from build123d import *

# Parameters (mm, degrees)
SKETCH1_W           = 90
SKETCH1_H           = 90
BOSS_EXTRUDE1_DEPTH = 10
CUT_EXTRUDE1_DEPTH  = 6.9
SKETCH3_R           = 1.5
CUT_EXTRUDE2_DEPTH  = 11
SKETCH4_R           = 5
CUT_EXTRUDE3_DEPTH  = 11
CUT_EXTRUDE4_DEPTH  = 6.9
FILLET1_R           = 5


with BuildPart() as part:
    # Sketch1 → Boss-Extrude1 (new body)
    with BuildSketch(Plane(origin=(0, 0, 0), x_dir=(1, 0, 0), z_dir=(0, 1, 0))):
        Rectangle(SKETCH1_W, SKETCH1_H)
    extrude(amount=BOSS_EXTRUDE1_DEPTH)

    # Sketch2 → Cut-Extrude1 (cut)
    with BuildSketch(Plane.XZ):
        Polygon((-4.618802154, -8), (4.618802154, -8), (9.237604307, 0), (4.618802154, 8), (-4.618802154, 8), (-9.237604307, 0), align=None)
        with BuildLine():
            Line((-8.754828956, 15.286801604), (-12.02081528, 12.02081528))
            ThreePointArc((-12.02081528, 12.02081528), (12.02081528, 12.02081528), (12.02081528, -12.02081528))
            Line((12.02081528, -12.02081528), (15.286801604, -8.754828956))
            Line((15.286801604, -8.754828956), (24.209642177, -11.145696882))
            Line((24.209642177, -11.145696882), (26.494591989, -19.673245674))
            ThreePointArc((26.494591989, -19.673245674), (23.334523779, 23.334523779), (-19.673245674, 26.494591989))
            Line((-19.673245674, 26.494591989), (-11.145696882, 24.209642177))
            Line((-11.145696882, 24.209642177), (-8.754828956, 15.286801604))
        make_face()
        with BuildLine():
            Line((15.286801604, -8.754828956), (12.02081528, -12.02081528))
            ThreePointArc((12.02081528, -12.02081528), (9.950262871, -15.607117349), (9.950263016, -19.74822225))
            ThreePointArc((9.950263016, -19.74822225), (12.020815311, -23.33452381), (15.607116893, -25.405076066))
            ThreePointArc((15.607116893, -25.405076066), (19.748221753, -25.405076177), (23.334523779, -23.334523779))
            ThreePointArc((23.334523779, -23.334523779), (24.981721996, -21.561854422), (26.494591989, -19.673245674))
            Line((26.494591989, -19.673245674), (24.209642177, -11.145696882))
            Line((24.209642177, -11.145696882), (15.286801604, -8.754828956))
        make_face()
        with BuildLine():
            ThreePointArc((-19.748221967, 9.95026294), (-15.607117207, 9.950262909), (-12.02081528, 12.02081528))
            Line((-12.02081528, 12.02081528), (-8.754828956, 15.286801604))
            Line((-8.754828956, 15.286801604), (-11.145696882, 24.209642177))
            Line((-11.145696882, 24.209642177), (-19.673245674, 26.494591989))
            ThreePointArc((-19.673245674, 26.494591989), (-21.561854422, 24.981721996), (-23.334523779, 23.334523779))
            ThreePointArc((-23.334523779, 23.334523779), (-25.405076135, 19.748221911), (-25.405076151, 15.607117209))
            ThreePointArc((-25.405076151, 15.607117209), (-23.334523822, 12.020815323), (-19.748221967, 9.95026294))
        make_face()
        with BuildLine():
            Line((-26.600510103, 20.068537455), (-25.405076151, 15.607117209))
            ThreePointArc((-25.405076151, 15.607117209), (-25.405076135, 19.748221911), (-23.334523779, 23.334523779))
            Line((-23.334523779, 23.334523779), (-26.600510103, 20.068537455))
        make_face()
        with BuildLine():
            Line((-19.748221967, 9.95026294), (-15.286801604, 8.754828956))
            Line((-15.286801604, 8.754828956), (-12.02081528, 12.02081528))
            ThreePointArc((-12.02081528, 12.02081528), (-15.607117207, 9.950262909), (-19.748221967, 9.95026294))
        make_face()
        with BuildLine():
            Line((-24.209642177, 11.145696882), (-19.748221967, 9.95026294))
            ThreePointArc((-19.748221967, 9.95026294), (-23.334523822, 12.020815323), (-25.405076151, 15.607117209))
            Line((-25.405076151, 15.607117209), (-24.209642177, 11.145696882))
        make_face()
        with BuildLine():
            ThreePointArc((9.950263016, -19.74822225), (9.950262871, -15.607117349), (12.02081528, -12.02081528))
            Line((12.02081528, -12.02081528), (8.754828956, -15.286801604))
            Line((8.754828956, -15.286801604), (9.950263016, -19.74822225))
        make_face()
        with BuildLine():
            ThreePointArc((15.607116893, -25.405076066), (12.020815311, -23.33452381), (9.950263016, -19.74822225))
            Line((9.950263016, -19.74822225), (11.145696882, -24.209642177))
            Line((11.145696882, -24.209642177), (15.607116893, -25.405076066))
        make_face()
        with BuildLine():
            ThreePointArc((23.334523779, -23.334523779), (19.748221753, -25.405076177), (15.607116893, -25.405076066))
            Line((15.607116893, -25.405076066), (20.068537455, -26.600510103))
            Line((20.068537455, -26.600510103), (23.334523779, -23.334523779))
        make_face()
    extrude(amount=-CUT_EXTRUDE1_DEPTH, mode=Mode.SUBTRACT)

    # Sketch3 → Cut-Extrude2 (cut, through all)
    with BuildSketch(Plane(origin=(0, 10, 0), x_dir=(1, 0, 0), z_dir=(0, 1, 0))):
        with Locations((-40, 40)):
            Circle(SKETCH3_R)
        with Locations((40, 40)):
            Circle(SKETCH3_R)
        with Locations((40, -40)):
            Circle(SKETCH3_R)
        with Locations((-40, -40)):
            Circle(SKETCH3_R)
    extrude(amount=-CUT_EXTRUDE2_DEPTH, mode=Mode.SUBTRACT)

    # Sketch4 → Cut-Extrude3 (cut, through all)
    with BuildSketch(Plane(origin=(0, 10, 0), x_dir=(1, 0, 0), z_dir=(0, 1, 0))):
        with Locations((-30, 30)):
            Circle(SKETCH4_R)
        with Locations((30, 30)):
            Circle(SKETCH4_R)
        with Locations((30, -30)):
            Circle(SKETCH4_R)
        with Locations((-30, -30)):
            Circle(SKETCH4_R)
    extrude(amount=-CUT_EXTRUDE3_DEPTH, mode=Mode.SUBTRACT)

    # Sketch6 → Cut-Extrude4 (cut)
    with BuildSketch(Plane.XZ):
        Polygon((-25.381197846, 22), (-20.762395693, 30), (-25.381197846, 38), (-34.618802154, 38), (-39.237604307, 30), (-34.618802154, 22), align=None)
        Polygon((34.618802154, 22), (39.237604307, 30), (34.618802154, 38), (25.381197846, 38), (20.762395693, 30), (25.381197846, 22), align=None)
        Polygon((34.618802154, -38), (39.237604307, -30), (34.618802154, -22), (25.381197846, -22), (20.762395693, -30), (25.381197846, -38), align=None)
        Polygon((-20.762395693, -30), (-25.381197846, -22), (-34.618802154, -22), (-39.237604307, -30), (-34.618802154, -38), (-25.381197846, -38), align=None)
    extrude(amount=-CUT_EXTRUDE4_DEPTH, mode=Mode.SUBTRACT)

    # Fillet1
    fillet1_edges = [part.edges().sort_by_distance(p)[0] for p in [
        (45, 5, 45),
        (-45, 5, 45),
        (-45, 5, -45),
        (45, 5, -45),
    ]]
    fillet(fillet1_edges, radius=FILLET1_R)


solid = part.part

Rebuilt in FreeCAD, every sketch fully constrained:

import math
import FreeCAD as App
import Part
import Sketcher
from FreeCAD import Vector
Q = App.Units.Quantity


def edges_at(feature, points):
    """Names of the edges that pass closest to the given points."""
    edges = feature.Shape.Edges
    near = lambda p: min(range(len(edges)), key=lambda i: edges[i].distToShape(Part.Vertex(*p))[0])
    return sorted({f"Edge{near(p) + 1}" for p in points})


def add_polygon(sketch, points):
    """Adds a closed chain of lines whose ends are joined by coincident constraints."""
    first, n = sketch.GeometryCount, len(points)
    for a, b in zip(points, points[1:] + points[:1]):
        sketch.addGeometry(Part.LineSegment(App.Vector(*a, 0), App.Vector(*b, 0)), False)
    for i in range(n):
        sketch.addConstraint(Sketcher.Constraint("Coincident", first + i, 2, first + (i + 1) % n, 1))

doc = App.newDocument("Part")
params = doc.addObject("Spreadsheet::Sheet", "Params")
for row, (alias, value) in enumerate([
    ("sketch1_width", "90 mm"),
    ("pad1_length", "10 mm"),
    ("sketch2_radius", "17 mm"),
    ("sketch2_radius2", "33 mm"),
    ("pocket1_length", "6.9 mm"),
    ("sketch3_diameter", "3 mm"),
    ("sketch4_diameter", "10 mm"),
    ("pocket4_length", "6.9 mm"),
    ("fillet_radius", "5 mm"),
], start=1):
    params.set(f"A{row}", alias)
    params.set(f"B{row}", "=" + value)
    params.setAlias(f"B{row}", alias)

body = doc.addObject("PartDesign::Body", "Body")

# Sketch on XZ plane
sketch1 = doc.addObject("Sketcher::SketchObject", "Sketch")
body.addObject(sketch1)
sketch1.AttachmentSupport = (doc.XZ_Plane, [""])
sketch1.MapMode = "FlatFace"
add_polygon(sketch1, [(-45, -45), (-45, 45), (45, 45), (45, -45)])  # lines 0-3
sketch1.addConstraint([
    Sketcher.Constraint("Vertical", 0),
    Sketcher.Constraint("Horizontal", 1),
    Sketcher.Constraint("Vertical", 2),
    Sketcher.Constraint("Horizontal", 3),
    Sketcher.Constraint("Symmetric", 0, 2, 2, 2, -1, 1),
    Sketcher.Constraint("Equal", 3, 0),
    Sketcher.Constraint("DistanceX", 1, 1, 1, 2, 90.0),
])
sketch1.setExpression("Constraints[10]", "Params.sketch1_width")
pad1 = doc.addObject("PartDesign::Pad", "Pad")
body.addObject(pad1)
pad1.Profile = sketch1
pad1.setExpression("Length", "Params.pad1_length")
pad1.Reversed = True

# Sketch on XZ plane
sketch2 = doc.addObject("Sketcher::SketchObject", "Sketch001")
body.addObject(sketch2)
sketch2.AttachmentSupport = (doc.XZ_Plane, [""])
sketch2.MapMode = "FlatFace"
add_polygon(sketch2, [(-4.618802, -8), (4.618802, -8), (9.237604, 0), (4.618802, 8), (-4.618802, 8), (-9.237604, 0)])  # lines 0-5
sketch2.addGeometry(Part.ArcOfCircle(Part.Circle(Vector(0, 0, 0), Vector(0, 0, 1), 17), math.radians(-45), math.radians(135)), False)  # 6
sketch2.addGeometry(Part.LineSegment(Vector(12.020815, -12.020815, 0), Vector(8.754829, -15.286802, 0)), False)  # 7
sketch2.addGeometry(Part.LineSegment(Vector(8.754829, -15.286802, 0), Vector(9.950263, -19.748222, 0)), False)  # 8
sketch2.addGeometry(Part.LineSegment(Vector(9.950263, -19.748222, 0), Vector(11.145697, -24.209642, 0)), False)  # 9
sketch2.addGeometry(Part.LineSegment(Vector(11.145697, -24.209642, 0), Vector(15.607117, -25.405076, 0)), False)  # 10
sketch2.addGeometry(Part.LineSegment(Vector(15.607117, -25.405076, 0), Vector(20.068537, -26.60051, 0)), False)  # 11
sketch2.addGeometry(Part.LineSegment(Vector(20.068537, -26.60051, 0), Vector(23.334524, -23.334524, 0)), False)  # 12
sketch2.addGeometry(Part.ArcOfCircle(Part.Circle(Vector(0, 0, 0), Vector(0, 0, 1), 33), math.radians(-45), math.radians(-36.595296)), False)  # 13
sketch2.addGeometry(Part.ArcOfCircle(Part.Circle(Vector(0, 0, 0), Vector(0, 0, 1), 33), math.radians(-36.595296), math.radians(126.595296)), False)  # 14
sketch2.addGeometry(Part.ArcOfCircle(Part.Circle(Vector(0, 0, 0), Vector(0, 0, 1), 33), math.radians(126.595296), math.radians(135)), False)  # 15
sketch2.addGeometry(Part.LineSegment(Vector(-23.334524, 23.334524, 0), Vector(-26.60051, 20.068537, 0)), False)  # 16
sketch2.addGeometry(Part.LineSegment(Vector(-26.60051, 20.068537, 0), Vector(-25.405076, 15.607117, 0)), False)  # 17
sketch2.addGeometry(Part.LineSegment(Vector(-25.405076, 15.607117, 0), Vector(-24.209642, 11.145697, 0)), False)  # 18
sketch2.addGeometry(Part.LineSegment(Vector(-24.209642, 11.145697, 0), Vector(-19.748222, 9.950263, 0)), False)  # 19
sketch2.addGeometry(Part.LineSegment(Vector(-19.748222, 9.950263, 0), Vector(-15.286802, 8.754829, 0)), False)  # 20
sketch2.addGeometry(Part.LineSegment(Vector(-15.286802, 8.754829, 0), Vector(-12.020815, 12.020815, 0)), False)  # 21
sketch2.addConstraint([
    Sketcher.Constraint("Tangent", 6, 1, 7, 1),
    Sketcher.Constraint("Coincident", 7, 2, 8, 1),
    Sketcher.Constraint("Coincident", 8, 2, 9, 1),
    Sketcher.Constraint("Coincident", 9, 2, 10, 1),
    Sketcher.Constraint("Coincident", 10, 2, 11, 1),
    Sketcher.Constraint("Coincident", 11, 2, 12, 1),
    Sketcher.Constraint("Tangent", 12, 2, 13, 1),
    Sketcher.Constraint("Tangent", 13, 2, 14, 1),
    Sketcher.Constraint("Tangent", 14, 2, 15, 1),
    Sketcher.Constraint("Tangent", 15, 2, 16, 1),
    Sketcher.Constraint("Coincident", 16, 2, 17, 1),
    Sketcher.Constraint("Coincident", 17, 2, 18, 1),
    Sketcher.Constraint("Coincident", 18, 2, 19, 1),
    Sketcher.Constraint("Coincident", 19, 2, 20, 1),
    Sketcher.Constraint("Coincident", 20, 2, 21, 1),
    Sketcher.Constraint("Tangent", 21, 2, 6, 2),
    Sketcher.Constraint("Horizontal", 0),
    Sketcher.Constraint("Horizontal", 3),
    Sketcher.Constraint("Coincident", 6, 3, -1, 1),
    Sketcher.Constraint("Coincident", 13, 3, -1, 1),
    Sketcher.Constraint("Coincident", 15, 3, -1, 1),
    Sketcher.Constraint("Symmetric", 0, 2, 3, 2, -1, 1),
    Sketcher.Constraint("Symmetric", 1, 2, 4, 2, -1, 1),
    Sketcher.Constraint("PointOnObject", 1, 2, -1),
    Sketcher.Constraint("Parallel", 2, 5),
    Sketcher.Constraint("Parallel", 8, 9),
    Sketcher.Constraint("Parallel", 10, 11),
    Sketcher.Constraint("Parallel", 7, 12),
    Sketcher.Constraint("Parallel", 12, 16),
    Sketcher.Constraint("Parallel", 9, 17),
    Sketcher.Constraint("Parallel", 17, 18),
    Sketcher.Constraint("Parallel", 11, 19),
    Sketcher.Constraint("Parallel", 19, 20),
    Sketcher.Constraint("Parallel", 16, 21),
    Sketcher.Constraint("Vertical", 0, 2, 2, 2),
    Sketcher.Constraint("Equal", 7, 8),
    Sketcher.Constraint("Equal", 8, 9),
    Sketcher.Constraint("Equal", 9, 10),
    Sketcher.Constraint("Equal", 10, 11),
    Sketcher.Constraint("Equal", 11, 12),
    Sketcher.Constraint("Equal", 12, 16),
    Sketcher.Constraint("Equal", 16, 17),
    Sketcher.Constraint("Equal", 17, 18),
    Sketcher.Constraint("Equal", 18, 19),
    Sketcher.Constraint("Radius", 6, 17.0),
    Sketcher.Constraint("Radius", 13, 33.0),
    Sketcher.Constraint("Angle", 1, Q("60 deg")),
    Sketcher.Constraint("Angle", 7, Q("-135 deg")),
    Sketcher.Constraint("Angle", 8, Q("-75 deg")),
    Sketcher.Constraint("DistanceY", 0, 2, -1, 1, 8.0),
    Sketcher.Constraint("DistanceX", 20, 2, 3, 2, 10.667999),
    Sketcher.Constraint("DistanceX", -1, 1, 13, 2, 26.494592),
    Sketcher.Constraint("DistanceY", -1, 1, 14, 2, 26.494592),
])
sketch2.setExpression("Constraints[50]", "Params.sketch2_radius")
sketch2.setExpression("Constraints[51]", "Params.sketch2_radius2")
pocket1 = doc.addObject("PartDesign::Pocket", "Pocket")
body.addObject(pocket1)
pocket1.Profile = sketch2
pocket1.setExpression("Length", "Params.pocket1_length")

# Sketch on XZ plane
sketch3 = doc.addObject("Sketcher::SketchObject", "Sketch002")
body.addObject(sketch3)
sketch3.AttachmentSupport = (doc.XZ_Plane, [""])
sketch3.MapMode = "FlatFace"
sketch3.AttachmentOffset = App.Placement(Vector(0, 0, -10), App.Rotation())
sketch3.addGeometry([
    Part.Circle(Vector(-40, -40, 0), Vector(0, 0, 1), 1.5),
    Part.Circle(Vector(40, -40, 0), Vector(0, 0, 1), 1.5),
    Part.Circle(Vector(40, 40, 0), Vector(0, 0, 1), 1.5),
    Part.Circle(Vector(-40, 40, 0), Vector(0, 0, 1), 1.5),
], False)
sketch3.addConstraint([
    Sketcher.Constraint("Equal", 0, 1),
    Sketcher.Constraint("Equal", 1, 2),
    Sketcher.Constraint("Equal", 2, 3),
    Sketcher.Constraint("Symmetric", 0, 3, 2, 3, -1, 1),
    Sketcher.Constraint("Symmetric", 1, 3, 3, 3, -1, 1),
    Sketcher.Constraint("Symmetric", 0, 3, 1, 3, -2),
    Sketcher.Constraint("Diameter", 0, 3.0),
    Sketcher.Constraint("DistanceX", 0, 3, -1, 1, 40.0),
    Sketcher.Constraint("DistanceY", 0, 3, -1, 1, 40.0),
])
sketch3.setExpression("Constraints[6]", "Params.sketch3_diameter")
pocket2 = doc.addObject("PartDesign::Pocket", "Pocket001")
body.addObject(pocket2)
pocket2.Profile = sketch3
pocket2.Type = "ThroughAll"
pocket2.Reversed = True

# Sketch on XZ plane
sketch4 = doc.addObject("Sketcher::SketchObject", "Sketch003")
body.addObject(sketch4)
sketch4.AttachmentSupport = (doc.XZ_Plane, [""])
sketch4.MapMode = "FlatFace"
sketch4.AttachmentOffset = App.Placement(Vector(0, 0, -10), App.Rotation())
sketch4.addGeometry([
    Part.Circle(Vector(-30, -30, 0), Vector(0, 0, 1), 5),
    Part.Circle(Vector(30, -30, 0), Vector(0, 0, 1), 5),
    Part.Circle(Vector(30, 30, 0), Vector(0, 0, 1), 5),
    Part.Circle(Vector(-30, 30, 0), Vector(0, 0, 1), 5),
], False)
sketch4.addConstraint([
    Sketcher.Constraint("Equal", 0, 1),
    Sketcher.Constraint("Equal", 1, 2),
    Sketcher.Constraint("Equal", 2, 3),
    Sketcher.Constraint("Symmetric", 0, 3, 2, 3, -1, 1),
    Sketcher.Constraint("Symmetric", 1, 3, 3, 3, -1, 1),
    Sketcher.Constraint("Symmetric", 0, 3, 1, 3, -2),
    Sketcher.Constraint("Diameter", 0, 10.0),
    Sketcher.Constraint("DistanceX", 0, 3, -1, 1, 30.0),
    Sketcher.Constraint("DistanceY", 0, 3, -1, 1, 30.0),
])
sketch4.setExpression("Constraints[6]", "Params.sketch4_diameter")
pocket3 = doc.addObject("PartDesign::Pocket", "Pocket002")
body.addObject(pocket3)
pocket3.Profile = sketch4
pocket3.Type = "ThroughAll"
pocket3.Reversed = True

# Sketch on XZ plane
sketch5 = doc.addObject("Sketcher::SketchObject", "Sketch004")
body.addObject(sketch5)
sketch5.AttachmentSupport = (doc.XZ_Plane, [""])
sketch5.MapMode = "FlatFace"
add_polygon(sketch5, [(-25.381198, 22), (-20.762396, 30), (-25.381198, 38), (-34.618802, 38), (-39.237604, 30), (-34.618802, 22)])  # lines 0-5
add_polygon(sketch5, [(34.618802, 22), (39.237604, 30), (34.618802, 38), (25.381198, 38), (20.762396, 30), (25.381198, 22)])  # lines 6-11
add_polygon(sketch5, [(34.618802, -38), (39.237604, -30), (34.618802, -22), (25.381198, -22), (20.762396, -30), (25.381198, -38)])  # lines 12-17
add_polygon(sketch5, [(-20.762396, -30), (-25.381198, -22), (-34.618802, -22), (-39.237604, -30), (-34.618802, -38), (-25.381198, -38)])  # lines 18-23
sketch5.addConstraint([
    Sketcher.Constraint("Horizontal", 2),
    Sketcher.Constraint("Horizontal", 5),
    Sketcher.Constraint("Horizontal", 8),
    Sketcher.Constraint("Horizontal", 11),
    Sketcher.Constraint("Horizontal", 14),
    Sketcher.Constraint("Horizontal", 17),
    Sketcher.Constraint("Horizontal", 19),
    Sketcher.Constraint("Horizontal", 22),
    Sketcher.Constraint("Symmetric", 3, 2, 12, 2, -1, 1),
    Sketcher.Constraint("Symmetric", 4, 2, 13, 2, -1, 1),
    Sketcher.Constraint("Symmetric", 0, 2, 15, 2, -1, 1),
    Sketcher.Constraint("Symmetric", 1, 2, 16, 2, -1, 1),
    Sketcher.Constraint("Symmetric", 10, 2, 18, 2, -1, 1),
    Sketcher.Constraint("Symmetric", 6, 2, 20, 2, -1, 1),
    Sketcher.Constraint("Symmetric", 7, 2, 21, 2, -1, 1),
    Sketcher.Constraint("Symmetric", 9, 2, 23, 2, -1, 1),
    Sketcher.Constraint("Symmetric", 3, 2, 6, 2, -2),
    Sketcher.Constraint("Symmetric", 2, 2, 7, 2, -2),
    Sketcher.Constraint("Symmetric", 0, 2, 9, 2, -2),
    Sketcher.Constraint("Symmetric", 5, 2, 10, 2, -2),
    Sketcher.Constraint("Parallel", 0, 3),
    Sketcher.Constraint("Parallel", 1, 4),
    Sketcher.Constraint("Parallel", 3, 6),
    Sketcher.Constraint("Parallel", 4, 7),
    Sketcher.Constraint("Parallel", 6, 9),
    Sketcher.Constraint("Parallel", 9, 12),
    Sketcher.Constraint("Parallel", 12, 15),
    Sketcher.Constraint("Parallel", 15, 20),
    Sketcher.Constraint("Parallel", 20, 23),
    Sketcher.Constraint("Horizontal", 0, 2, 3, 2),
    Sketcher.Constraint("Vertical", 2, 2, 4, 2),
    Sketcher.Constraint("Angle", 0, Q("60 deg")),
    Sketcher.Constraint("DistanceY", -1, 1, 0, 2, 30.0),
    Sketcher.Constraint("DistanceY", -1, 1, 1, 2, 38.0),
    Sketcher.Constraint("DistanceX", 0, 2, 6, 2, 60.0),
    Sketcher.Constraint("DistanceX", 2, 2, 2, 1, 9.237604),
])
pocket4 = doc.addObject("PartDesign::Pocket", "Pocket003")
body.addObject(pocket4)
pocket4.Profile = sketch5
pocket4.setExpression("Length", "Params.pocket4_length")
doc.recompute()

fillet = doc.addObject("PartDesign::Fillet", "Fillet")
body.addObject(fillet)
fillet.Base = (pocket4, edges_at(pocket4, [
    (45, 5, 45),
    (-45, 5, 45),
    (-45, 5, -45),
    (45, 5, -45),
]))
fillet.setExpression("Radius", "Params.fillet_radius")

doc.recompute()
